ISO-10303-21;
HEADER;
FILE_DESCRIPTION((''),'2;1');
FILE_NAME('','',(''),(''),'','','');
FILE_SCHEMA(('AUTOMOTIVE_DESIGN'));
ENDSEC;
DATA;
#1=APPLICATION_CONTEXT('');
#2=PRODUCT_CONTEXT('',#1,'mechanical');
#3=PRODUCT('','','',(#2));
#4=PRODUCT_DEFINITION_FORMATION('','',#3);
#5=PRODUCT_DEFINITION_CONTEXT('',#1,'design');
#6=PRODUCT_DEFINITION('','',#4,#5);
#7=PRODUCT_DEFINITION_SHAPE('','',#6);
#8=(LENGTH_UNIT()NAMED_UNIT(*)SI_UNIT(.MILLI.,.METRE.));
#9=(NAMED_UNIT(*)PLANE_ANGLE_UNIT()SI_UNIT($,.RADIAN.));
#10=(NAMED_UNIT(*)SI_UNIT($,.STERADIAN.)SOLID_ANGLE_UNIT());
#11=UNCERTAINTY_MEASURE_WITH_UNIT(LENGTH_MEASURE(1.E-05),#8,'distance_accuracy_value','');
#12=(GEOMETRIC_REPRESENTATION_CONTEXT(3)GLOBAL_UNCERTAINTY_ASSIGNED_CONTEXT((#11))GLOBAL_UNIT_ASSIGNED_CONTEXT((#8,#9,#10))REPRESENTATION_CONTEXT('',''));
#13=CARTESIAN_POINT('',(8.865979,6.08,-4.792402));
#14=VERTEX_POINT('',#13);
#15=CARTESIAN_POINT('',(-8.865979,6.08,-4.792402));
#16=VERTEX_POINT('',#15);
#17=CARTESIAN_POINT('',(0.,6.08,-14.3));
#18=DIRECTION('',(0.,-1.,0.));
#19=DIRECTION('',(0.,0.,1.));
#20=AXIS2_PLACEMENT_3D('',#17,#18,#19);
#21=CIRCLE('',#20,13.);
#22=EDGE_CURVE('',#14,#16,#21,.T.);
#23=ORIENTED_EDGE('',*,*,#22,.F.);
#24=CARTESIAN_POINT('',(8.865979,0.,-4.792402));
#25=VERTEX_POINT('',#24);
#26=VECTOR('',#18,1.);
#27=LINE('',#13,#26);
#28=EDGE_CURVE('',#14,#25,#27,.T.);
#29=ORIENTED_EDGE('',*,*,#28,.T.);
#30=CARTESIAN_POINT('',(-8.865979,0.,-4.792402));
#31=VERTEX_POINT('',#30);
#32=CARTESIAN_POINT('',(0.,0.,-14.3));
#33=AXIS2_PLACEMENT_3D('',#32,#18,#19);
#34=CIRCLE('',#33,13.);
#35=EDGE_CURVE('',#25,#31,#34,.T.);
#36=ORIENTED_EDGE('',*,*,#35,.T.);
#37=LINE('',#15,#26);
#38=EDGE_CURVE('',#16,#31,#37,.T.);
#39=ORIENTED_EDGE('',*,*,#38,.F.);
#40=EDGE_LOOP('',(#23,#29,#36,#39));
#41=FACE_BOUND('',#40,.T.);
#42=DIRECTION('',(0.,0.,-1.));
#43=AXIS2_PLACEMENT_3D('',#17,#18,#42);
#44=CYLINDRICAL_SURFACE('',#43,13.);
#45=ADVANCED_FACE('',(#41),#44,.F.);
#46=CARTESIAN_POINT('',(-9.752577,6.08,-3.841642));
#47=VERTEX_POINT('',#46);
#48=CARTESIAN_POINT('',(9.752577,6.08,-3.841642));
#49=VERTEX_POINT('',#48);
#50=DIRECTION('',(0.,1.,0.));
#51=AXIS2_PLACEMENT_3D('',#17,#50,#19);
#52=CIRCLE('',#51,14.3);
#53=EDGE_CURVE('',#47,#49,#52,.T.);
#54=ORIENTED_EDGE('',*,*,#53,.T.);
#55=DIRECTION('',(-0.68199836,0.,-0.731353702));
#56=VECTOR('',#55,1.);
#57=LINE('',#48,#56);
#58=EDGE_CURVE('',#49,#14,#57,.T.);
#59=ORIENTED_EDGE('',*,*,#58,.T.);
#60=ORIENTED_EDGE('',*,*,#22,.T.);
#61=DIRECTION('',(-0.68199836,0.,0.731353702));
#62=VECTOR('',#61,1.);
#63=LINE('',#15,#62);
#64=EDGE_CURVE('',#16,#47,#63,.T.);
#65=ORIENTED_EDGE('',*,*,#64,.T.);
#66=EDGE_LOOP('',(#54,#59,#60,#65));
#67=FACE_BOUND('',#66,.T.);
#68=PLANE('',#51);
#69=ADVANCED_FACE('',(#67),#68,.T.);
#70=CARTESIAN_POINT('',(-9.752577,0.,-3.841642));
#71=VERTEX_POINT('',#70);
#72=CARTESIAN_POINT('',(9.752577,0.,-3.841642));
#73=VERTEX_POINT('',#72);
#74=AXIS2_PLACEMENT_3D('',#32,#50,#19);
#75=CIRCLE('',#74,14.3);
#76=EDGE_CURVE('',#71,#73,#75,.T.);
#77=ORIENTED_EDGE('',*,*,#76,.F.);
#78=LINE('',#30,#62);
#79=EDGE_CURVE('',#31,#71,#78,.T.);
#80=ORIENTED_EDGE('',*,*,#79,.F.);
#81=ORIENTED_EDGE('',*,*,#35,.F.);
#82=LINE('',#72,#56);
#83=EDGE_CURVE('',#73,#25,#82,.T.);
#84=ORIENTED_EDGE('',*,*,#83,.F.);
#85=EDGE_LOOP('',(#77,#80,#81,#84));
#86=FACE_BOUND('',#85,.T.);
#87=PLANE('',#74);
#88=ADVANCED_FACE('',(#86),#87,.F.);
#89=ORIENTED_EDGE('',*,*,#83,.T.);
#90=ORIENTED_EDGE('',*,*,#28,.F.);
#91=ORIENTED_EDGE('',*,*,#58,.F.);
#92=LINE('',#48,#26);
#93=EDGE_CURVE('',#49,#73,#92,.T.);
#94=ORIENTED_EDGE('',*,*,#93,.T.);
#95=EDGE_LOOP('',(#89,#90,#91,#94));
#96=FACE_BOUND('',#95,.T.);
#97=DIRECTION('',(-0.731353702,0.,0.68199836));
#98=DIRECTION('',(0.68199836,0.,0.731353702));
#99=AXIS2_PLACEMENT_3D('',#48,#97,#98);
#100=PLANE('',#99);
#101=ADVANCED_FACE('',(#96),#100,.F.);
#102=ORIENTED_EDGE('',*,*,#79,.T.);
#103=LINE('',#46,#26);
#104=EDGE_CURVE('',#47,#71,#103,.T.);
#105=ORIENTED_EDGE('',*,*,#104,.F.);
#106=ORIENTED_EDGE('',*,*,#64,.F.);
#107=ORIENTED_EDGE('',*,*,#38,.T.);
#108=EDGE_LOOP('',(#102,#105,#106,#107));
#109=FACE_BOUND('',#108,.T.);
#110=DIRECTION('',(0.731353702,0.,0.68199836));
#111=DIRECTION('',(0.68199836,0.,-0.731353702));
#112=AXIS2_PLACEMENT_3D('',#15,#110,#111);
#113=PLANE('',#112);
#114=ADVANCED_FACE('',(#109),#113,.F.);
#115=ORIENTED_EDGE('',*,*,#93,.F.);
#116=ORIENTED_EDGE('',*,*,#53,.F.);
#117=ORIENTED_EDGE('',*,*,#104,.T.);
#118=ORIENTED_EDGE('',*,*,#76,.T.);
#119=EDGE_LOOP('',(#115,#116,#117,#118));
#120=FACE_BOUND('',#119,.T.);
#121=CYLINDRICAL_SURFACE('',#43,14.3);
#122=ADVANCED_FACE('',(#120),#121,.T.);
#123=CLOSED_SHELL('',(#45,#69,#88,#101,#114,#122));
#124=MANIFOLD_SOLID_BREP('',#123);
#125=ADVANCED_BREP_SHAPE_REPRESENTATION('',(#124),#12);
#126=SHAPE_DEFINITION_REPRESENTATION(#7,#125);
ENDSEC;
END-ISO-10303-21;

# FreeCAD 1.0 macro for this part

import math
import FreeCAD as App
import Part
import Sketcher

V = App.Vector
Q = App.Units.Quantity

doc = App.newDocument("Part")
body = doc.addObject("PartDesign::Body", "Body")

# Sketch on XZ plane
sketch1 = body.newObject("Sketcher::SketchObject", "Sketch")
sketch1.AttachmentSupport = (doc.getObject("XZ_Plane"), [""])
sketch1.MapMode = "FlatFace"
sketch1.addGeometry([
    Part.LineSegment(V(9.8, -3.8, 0), V(8.9, -4.8, 0)),
    Part.ArcOfCircle(Part.Circle(V(0, -14.3, 0), V(0, 0, 1), 13), math.radians(47), math.radians(133)),
    Part.LineSegment(V(-8.9, -4.8, 0), V(-9.8, -3.8, 0)),
    Part.ArcOfCircle(Part.Circle(V(0, -14.3, 0), V(0, 0, 1), 14.3), math.radians(47), math.radians(133)),
], False)
sketch1.addConstraint([
    Sketcher.Constraint("Coincident", 0, 2, 1, 1),
    Sketcher.Constraint("Coincident", 1, 2, 2, 1),
    Sketcher.Constraint("Coincident", 2, 2, 3, 2),
    Sketcher.Constraint("Coincident", 3, 1, 0, 1),
    Sketcher.Constraint("Coincident", 3, 3, 1, 3),
    Sketcher.Constraint("Symmetric", 0, 2, 1, 2, -2),
    Sketcher.Constraint("Horizontal", 2, 2, 3, 1),
    Sketcher.Constraint("Radius", 1, Q("13 mm")),
    Sketcher.Constraint("Radius", 3, Q("14.3 mm")),
    Sketcher.Constraint("Angle", 0, Q("-133 deg")),
    Sketcher.Constraint("DistanceY", 1, 3, -1, 1, Q("14.3 mm")),
    Sketcher.Constraint("DistanceY", 0, 2, -1, 1, Q("4.792402 mm")),
])
pad1 = body.newObject("PartDesign::Pad", "Pad")
pad1.Profile = sketch1
pad1.Length = 6.08
pad1.Reversed = True

doc.recompute()
